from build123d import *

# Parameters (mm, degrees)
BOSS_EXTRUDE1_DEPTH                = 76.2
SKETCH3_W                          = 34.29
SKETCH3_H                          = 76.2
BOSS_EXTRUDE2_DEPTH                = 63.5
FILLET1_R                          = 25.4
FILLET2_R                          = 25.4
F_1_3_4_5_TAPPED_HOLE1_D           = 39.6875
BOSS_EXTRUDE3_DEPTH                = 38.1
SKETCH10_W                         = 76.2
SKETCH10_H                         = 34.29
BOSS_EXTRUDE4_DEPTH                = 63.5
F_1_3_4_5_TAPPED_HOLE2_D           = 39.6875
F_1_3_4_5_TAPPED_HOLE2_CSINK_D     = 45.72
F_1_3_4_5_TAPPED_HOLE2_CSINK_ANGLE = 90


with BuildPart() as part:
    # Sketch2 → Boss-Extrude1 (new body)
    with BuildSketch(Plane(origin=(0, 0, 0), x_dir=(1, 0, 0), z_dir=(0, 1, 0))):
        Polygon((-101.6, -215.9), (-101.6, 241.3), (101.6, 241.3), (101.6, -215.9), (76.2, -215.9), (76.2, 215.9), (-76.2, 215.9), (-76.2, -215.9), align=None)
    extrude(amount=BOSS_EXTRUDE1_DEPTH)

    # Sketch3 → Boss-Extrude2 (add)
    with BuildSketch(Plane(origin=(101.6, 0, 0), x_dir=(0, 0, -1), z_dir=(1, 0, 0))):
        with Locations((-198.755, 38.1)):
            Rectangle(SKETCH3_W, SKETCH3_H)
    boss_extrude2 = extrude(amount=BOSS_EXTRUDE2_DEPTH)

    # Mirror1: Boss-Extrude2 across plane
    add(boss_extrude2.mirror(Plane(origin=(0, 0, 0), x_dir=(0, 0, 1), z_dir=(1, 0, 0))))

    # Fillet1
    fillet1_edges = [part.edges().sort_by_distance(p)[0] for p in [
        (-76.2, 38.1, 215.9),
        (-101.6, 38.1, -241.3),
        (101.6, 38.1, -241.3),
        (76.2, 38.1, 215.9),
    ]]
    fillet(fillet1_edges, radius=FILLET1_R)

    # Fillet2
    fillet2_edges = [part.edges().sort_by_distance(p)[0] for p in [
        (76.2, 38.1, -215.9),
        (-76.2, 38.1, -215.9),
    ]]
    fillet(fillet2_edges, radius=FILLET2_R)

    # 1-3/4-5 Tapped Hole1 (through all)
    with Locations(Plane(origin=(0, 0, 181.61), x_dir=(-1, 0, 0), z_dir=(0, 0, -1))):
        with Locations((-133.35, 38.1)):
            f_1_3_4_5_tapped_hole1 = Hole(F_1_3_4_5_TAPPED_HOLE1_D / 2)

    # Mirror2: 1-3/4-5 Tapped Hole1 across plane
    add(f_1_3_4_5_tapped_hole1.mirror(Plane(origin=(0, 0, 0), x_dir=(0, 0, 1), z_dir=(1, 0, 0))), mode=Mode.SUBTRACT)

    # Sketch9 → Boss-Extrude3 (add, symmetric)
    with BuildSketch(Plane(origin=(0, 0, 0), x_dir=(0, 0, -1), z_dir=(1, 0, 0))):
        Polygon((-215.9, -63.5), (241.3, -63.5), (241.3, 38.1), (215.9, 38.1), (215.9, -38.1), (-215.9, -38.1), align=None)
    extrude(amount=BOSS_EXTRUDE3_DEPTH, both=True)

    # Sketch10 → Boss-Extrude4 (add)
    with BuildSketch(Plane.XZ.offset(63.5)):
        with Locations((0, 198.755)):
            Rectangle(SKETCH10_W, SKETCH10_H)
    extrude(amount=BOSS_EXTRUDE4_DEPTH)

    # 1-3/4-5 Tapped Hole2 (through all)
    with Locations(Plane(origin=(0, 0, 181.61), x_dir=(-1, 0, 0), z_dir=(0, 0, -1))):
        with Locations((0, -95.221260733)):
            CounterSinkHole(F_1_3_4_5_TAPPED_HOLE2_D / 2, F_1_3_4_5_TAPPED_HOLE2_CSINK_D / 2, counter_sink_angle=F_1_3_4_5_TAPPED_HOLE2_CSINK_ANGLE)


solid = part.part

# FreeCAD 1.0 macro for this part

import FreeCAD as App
import Part
import Sketcher
Q = App.Units.Quantity


def edges_at(feature, points):
    """Names of the edges that pass closest to the given points."""
    edges = feature.Shape.Edges
    near = lambda p: min(range(len(edges)), key=lambda i: edges[i].distToShape(Part.Vertex(*p))[0])
    return sorted({f"Edge{near(p) + 1}" for p in points})


def add_polygon(sketch, points):
    """Adds a closed chain of lines whose ends are joined by coincident constraints."""
    first, n = sketch.GeometryCount, len(points)
    for a, b in zip(points, points[1:] + points[:1]):
        sketch.addGeometry(Part.LineSegment(App.Vector(*a, 0), App.Vector(*b, 0)), False)
    for i in range(n):
        sketch.addConstraint(Sketcher.Constraint("Coincident", first + i, 2, first + (i + 1) % n, 1))

doc = App.newDocument("Part")
params = doc.addObject("Spreadsheet::Sheet", "Params")
for row, (alias, value) in enumerate([
    ("sketch1_width", "1 in"),
    ("sketch1_width2", "6 in"),
    ("sketch1_height", "18 in"),
    ("sketch1_height2", "17 in"),
    ("pad1_length", "3 in"),
    ("sketch2_width", "3 in"),
    ("sketch2_height", "1.35 in"),
    ("pad2_length", "2.5 in"),
    ("fillet_radius", "1 in"),
    ("fillet2_radius", "1 in"),
    ("sketch3_diameter", "1.5625 in"),
    ("hole_diameter", "1.5625 in"),
    ("sketch4_width", "4 in"),
    ("sketch4_width2", "3 in"),
    ("sketch4_height", "18 in"),
    ("pad3_length", "3 in"),
    ("sketch5_width", "3 in"),
    ("sketch5_height", "1.35 in"),
    ("pad4_length", "2.5 in"),
    ("sketch6_diameter", "1.5625 in"),
    ("hole2_diameter", "1.5625 in"),
    ("hole2_csink_diameter", "1.8 in"),
], start=1):
    params.set(f"A{row}", alias)
    params.set(f"B{row}", "=" + value)
    params.setAlias(f"B{row}", alias)

body = doc.addObject("PartDesign::Body", "Body")

# Sketch on XZ plane
sketch1 = body.newObject("Sketcher::SketchObject", "Sketch")
sketch1.AttachmentSupport = (doc.getObject("XZ_Plane"), [""])
sketch1.MapMode = "FlatFace"
add_polygon(sketch1, [(-102, -241), (-102, 216), (-76, 216), (-76, -216), (76, -216), (76, 216), (102, 216), (102, -241)])  # lines 0-7
sketch1.addConstraint([
    Sketcher.Constraint("Vertical", 0),
    Sketcher.Constraint("Horizontal", 1),
    Sketcher.Constraint("Vertical", 2),
    Sketcher.Constraint("Horizontal", 3),
    Sketcher.Constraint("Vertical", 4),
    Sketcher.Constraint("Horizontal", 5),
    Sketcher.Constraint("Vertical", 6),
    Sketcher.Constraint("Horizontal", 7),
    Sketcher.Constraint("Symmetric", 1, 2, 3, 2, -1, 1),
    Sketcher.Constraint("Symmetric", 0, 2, 5, 2, -2),
    Sketcher.Constraint("DistanceX", 1, 1, 1, 2, Q("1 in")),
    Sketcher.Constraint("DistanceX", 3, 1, 3, 2, Q("6 in")),
    Sketcher.Constraint("DistanceY", 0, 1, 0, 2, Q("18 in")),
    Sketcher.Constraint("DistanceY", 2, 2, 2, 1, Q("17 in")),
])
sketch1.setExpression("Constraints[18]", "Params.sketch1_width")
sketch1.setExpression("Constraints[19]", "Params.sketch1_width2")
sketch1.setExpression("Constraints[20]", "Params.sketch1_height")
sketch1.setExpression("Constraints[21]", "Params.sketch1_height2")
pad1 = body.newObject("PartDesign::Pad", "Pad")
pad1.Profile = sketch1
pad1.setExpression("Length", "Params.pad1_length")
pad1.Reversed = True

# Sketch on YZ plane
sketch2 = body.newObject("Sketcher::SketchObject", "Sketch001")
sketch2.AttachmentSupport = (doc.getObject("YZ_Plane"), [""])
sketch2.MapMode = "FlatFace"
sketch2.AttachmentOffset = App.Placement(App.Vector(0, 0, 4 * 25.4), App.Rotation())
add_polygon(sketch2, [(76, 216), (0, 216), (0, 182), (76, 182)])  # lines 0-3
sketch2.addConstraint([
    Sketcher.Constraint("Horizontal", 0),
    Sketcher.Constraint("Vertical", 1),
    Sketcher.Constraint("Horizontal", 2),
    Sketcher.Constraint("Vertical", 3),
    Sketcher.Constraint("PointOnObject", 0, 2, -2),
    Sketcher.Constraint("DistanceX", 0, 2, 0, 1, Q("3 in")),
    Sketcher.Constraint("DistanceY", 1, 2, 1, 1, Q("1.35 in")),
    Sketcher.Constraint("DistanceY", -1, 1, 0, 2, Q("8.5 in")),
])
sketch2.setExpression("Constraints[9]", "Params.sketch2_width")
sketch2.setExpression("Constraints[10]", "Params.sketch2_height")
pad2 = body.newObject("PartDesign::Pad", "Pad001")
pad2.Profile = sketch2
pad2.setExpression("Length", "Params.pad2_length")
doc.recompute()

mirrored = body.newObject("PartDesign::Mirrored", "Mirrored")
mirrored.Originals = [pad2]
mirrored.MirrorPlane = (doc.getObject("YZ_Plane"), [""])
body.Tip = mirrored
doc.recompute()

fillet = body.newObject("PartDesign::Fillet", "Fillet")
fillet.Base = (mirrored, edges_at(mirrored, [
    (-76.2, 38.1, 215.9),
    (-101.6, 38.1, -241.3),
    (101.6, 38.1, -241.3),
    (76.2, 38.1, 215.9),
]))
fillet.setExpression("Radius", "Params.fillet_radius")
doc.recompute()

fillet2 = body.newObject("PartDesign::Fillet", "Fillet001")
fillet2.Base = (fillet, edges_at(fillet, [(76.2, 38.1, -215.9), (-76.2, 38.1, -215.9)]))
fillet2.setExpression("Radius", "Params.fillet2_radius")

# Sketch on XY plane
sketch3 = body.newObject("Sketcher::SketchObject", "Sketch002")
sketch3.AttachmentSupport = (doc.getObject("XY_Plane"), [""])
sketch3.MapMode = "FlatFace"
sketch3.AttachmentOffset = App.Placement(App.Vector(0, 0, 7.15 * 25.4), App.Rotation())
sketch3.addGeometry(Part.Circle(App.Vector(133, 38, 0), App.Vector(0, 0, 1), 20), False)
sketch3.addConstraint([
    Sketcher.Constraint("Diameter", 0, Q("1.5625 in")),
    Sketcher.Constraint("DistanceY", -1, 1, 0, 3, Q("1.5 in")),
    Sketcher.Constraint("DistanceX", -1, 1, 0, 3, Q("5.25 in")),
])
sketch3.setExpression("Constraints[0]", "Params.sketch3_diameter")
doc.recompute()
hole = body.newObject("PartDesign::Hole", "Hole")
hole.Profile = sketch3
hole.ThreadType = "None"
hole.setExpression("Diameter", "Params.hole_diameter")
hole.DepthType = "ThroughAll"
hole.Reversed = True
doc.recompute()

mirrored2 = body.newObject("PartDesign::Mirrored", "Mirrored001")
mirrored2.Originals = [hole]
mirrored2.MirrorPlane = (doc.getObject("YZ_Plane"), [""])
body.Tip = mirrored2

# Sketch on YZ plane
sketch4 = body.newObject("Sketcher::SketchObject", "Sketch003")
sketch4.AttachmentSupport = (doc.getObject("YZ_Plane"), [""])
sketch4.MapMode = "FlatFace"
add_polygon(sketch4, [(-64, 216), (-64, -241), (38, -241), (38, -216), (-38, -216), (-38, 216)])  # lines 0-5
sketch4.addConstraint([
    Sketcher.Constraint("Vertical", 0),
    Sketcher.Constraint("Horizontal", 1),
    Sketcher.Constraint("Vertical", 2),
    Sketcher.Constraint("Horizontal", 3),
    Sketcher.Constraint("Vertical", 4),
    Sketcher.Constraint("Horizontal", 5),
    Sketcher.Constraint("Symmetric", 2, 2, 4, 2, -1, 1),
    Sketcher.Constraint("Equal", 5, 2),
    Sketcher.Constraint("DistanceX", 1, 1, 1, 2, Q("4 in")),
    Sketcher.Constraint("DistanceX", 3, 2, 3, 1, Q("3 in")),
    Sketcher.Constraint("DistanceY", 0, 2, 0, 1, Q("18 in")),
])
sketch4.setExpression("Constraints[14]", "Params.sketch4_width")
sketch4.setExpression("Constraints[15]", "Params.sketch4_width2")
sketch4.setExpression("Constraints[16]", "Params.sketch4_height")
pad3 = body.newObject("PartDesign::Pad", "Pad002")
pad3.Profile = sketch4
pad3.setExpression("Length", "Params.pad3_length")
pad3.Midplane = True

# Sketch on XZ plane
sketch5 = body.newObject("Sketcher::SketchObject", "Sketch004")
sketch5.AttachmentSupport = (doc.getObject("XZ_Plane"), [""])
sketch5.MapMode = "FlatFace"
sketch5.AttachmentOffset = App.Placement(App.Vector(0, 0, 2.5 * 25.4), App.Rotation())
add_polygon(sketch5, [(-38, 216), (-38, 182), (38, 182), (38, 216)])  # lines 0-3
sketch5.addConstraint([
    Sketcher.Constraint("Vertical", 0),
    Sketcher.Constraint("Horizontal", 1),
    Sketcher.Constraint("Vertical", 2),
    Sketcher.Constraint("Horizontal", 3),
    Sketcher.Constraint("DistanceX", 1, 1, 1, 2, Q("3 in")),
    Sketcher.Constraint("DistanceY", 0, 2, 0, 1, Q("1.35 in")),
    Sketcher.Constraint("DistanceX", 0, 2, -1, 1, Q("1.5 in")),
    Sketcher.Constraint("DistanceY", -1, 1, 2, 2, Q("8.5 in")),
])
sketch5.setExpression("Constraints[8]", "Params.sketch5_width")
sketch5.setExpression("Constraints[9]", "Params.sketch5_height")
pad4 = body.newObject("PartDesign::Pad", "Pad003")
pad4.Profile = sketch5
pad4.setExpression("Length", "Params.pad4_length")

# Sketch on XY plane
sketch6 = body.newObject("Sketcher::SketchObject", "Sketch005")
sketch6.AttachmentSupport = (doc.getObject("XY_Plane"), [""])
sketch6.MapMode = "FlatFace"
sketch6.AttachmentOffset = App.Placement(App.Vector(0, 0, 7.15 * 25.4), App.Rotation())
sketch6.addGeometry(Part.Circle(App.Vector(0, -95, 0), App.Vector(0, 0, 1), 20), False)
sketch6.addConstraint([
    Sketcher.Constraint("PointOnObject", 0, 3, -2),
    Sketcher.Constraint("Diameter", 0, Q("1.5625 in")),
    Sketcher.Constraint("DistanceY", 0, 3, -1, 1, Q("95.221261 mm")),
])
sketch6.setExpression("Constraints[1]", "Params.sketch6_diameter")
doc.recompute()
hole2 = body.newObject("PartDesign::Hole", "Hole001")
hole2.Profile = sketch6
hole2.ThreadType = "None"
hole2.setExpression("Diameter", "Params.hole2_diameter")
hole2.DepthType = "ThroughAll"
hole2.HoleCutType = "Countersink"
hole2.setExpression("HoleCutDiameter", "Params.hole2_csink_diameter")
hole2.HoleCutCountersinkAngle = 90
hole2.Reversed = True

doc.recompute()
